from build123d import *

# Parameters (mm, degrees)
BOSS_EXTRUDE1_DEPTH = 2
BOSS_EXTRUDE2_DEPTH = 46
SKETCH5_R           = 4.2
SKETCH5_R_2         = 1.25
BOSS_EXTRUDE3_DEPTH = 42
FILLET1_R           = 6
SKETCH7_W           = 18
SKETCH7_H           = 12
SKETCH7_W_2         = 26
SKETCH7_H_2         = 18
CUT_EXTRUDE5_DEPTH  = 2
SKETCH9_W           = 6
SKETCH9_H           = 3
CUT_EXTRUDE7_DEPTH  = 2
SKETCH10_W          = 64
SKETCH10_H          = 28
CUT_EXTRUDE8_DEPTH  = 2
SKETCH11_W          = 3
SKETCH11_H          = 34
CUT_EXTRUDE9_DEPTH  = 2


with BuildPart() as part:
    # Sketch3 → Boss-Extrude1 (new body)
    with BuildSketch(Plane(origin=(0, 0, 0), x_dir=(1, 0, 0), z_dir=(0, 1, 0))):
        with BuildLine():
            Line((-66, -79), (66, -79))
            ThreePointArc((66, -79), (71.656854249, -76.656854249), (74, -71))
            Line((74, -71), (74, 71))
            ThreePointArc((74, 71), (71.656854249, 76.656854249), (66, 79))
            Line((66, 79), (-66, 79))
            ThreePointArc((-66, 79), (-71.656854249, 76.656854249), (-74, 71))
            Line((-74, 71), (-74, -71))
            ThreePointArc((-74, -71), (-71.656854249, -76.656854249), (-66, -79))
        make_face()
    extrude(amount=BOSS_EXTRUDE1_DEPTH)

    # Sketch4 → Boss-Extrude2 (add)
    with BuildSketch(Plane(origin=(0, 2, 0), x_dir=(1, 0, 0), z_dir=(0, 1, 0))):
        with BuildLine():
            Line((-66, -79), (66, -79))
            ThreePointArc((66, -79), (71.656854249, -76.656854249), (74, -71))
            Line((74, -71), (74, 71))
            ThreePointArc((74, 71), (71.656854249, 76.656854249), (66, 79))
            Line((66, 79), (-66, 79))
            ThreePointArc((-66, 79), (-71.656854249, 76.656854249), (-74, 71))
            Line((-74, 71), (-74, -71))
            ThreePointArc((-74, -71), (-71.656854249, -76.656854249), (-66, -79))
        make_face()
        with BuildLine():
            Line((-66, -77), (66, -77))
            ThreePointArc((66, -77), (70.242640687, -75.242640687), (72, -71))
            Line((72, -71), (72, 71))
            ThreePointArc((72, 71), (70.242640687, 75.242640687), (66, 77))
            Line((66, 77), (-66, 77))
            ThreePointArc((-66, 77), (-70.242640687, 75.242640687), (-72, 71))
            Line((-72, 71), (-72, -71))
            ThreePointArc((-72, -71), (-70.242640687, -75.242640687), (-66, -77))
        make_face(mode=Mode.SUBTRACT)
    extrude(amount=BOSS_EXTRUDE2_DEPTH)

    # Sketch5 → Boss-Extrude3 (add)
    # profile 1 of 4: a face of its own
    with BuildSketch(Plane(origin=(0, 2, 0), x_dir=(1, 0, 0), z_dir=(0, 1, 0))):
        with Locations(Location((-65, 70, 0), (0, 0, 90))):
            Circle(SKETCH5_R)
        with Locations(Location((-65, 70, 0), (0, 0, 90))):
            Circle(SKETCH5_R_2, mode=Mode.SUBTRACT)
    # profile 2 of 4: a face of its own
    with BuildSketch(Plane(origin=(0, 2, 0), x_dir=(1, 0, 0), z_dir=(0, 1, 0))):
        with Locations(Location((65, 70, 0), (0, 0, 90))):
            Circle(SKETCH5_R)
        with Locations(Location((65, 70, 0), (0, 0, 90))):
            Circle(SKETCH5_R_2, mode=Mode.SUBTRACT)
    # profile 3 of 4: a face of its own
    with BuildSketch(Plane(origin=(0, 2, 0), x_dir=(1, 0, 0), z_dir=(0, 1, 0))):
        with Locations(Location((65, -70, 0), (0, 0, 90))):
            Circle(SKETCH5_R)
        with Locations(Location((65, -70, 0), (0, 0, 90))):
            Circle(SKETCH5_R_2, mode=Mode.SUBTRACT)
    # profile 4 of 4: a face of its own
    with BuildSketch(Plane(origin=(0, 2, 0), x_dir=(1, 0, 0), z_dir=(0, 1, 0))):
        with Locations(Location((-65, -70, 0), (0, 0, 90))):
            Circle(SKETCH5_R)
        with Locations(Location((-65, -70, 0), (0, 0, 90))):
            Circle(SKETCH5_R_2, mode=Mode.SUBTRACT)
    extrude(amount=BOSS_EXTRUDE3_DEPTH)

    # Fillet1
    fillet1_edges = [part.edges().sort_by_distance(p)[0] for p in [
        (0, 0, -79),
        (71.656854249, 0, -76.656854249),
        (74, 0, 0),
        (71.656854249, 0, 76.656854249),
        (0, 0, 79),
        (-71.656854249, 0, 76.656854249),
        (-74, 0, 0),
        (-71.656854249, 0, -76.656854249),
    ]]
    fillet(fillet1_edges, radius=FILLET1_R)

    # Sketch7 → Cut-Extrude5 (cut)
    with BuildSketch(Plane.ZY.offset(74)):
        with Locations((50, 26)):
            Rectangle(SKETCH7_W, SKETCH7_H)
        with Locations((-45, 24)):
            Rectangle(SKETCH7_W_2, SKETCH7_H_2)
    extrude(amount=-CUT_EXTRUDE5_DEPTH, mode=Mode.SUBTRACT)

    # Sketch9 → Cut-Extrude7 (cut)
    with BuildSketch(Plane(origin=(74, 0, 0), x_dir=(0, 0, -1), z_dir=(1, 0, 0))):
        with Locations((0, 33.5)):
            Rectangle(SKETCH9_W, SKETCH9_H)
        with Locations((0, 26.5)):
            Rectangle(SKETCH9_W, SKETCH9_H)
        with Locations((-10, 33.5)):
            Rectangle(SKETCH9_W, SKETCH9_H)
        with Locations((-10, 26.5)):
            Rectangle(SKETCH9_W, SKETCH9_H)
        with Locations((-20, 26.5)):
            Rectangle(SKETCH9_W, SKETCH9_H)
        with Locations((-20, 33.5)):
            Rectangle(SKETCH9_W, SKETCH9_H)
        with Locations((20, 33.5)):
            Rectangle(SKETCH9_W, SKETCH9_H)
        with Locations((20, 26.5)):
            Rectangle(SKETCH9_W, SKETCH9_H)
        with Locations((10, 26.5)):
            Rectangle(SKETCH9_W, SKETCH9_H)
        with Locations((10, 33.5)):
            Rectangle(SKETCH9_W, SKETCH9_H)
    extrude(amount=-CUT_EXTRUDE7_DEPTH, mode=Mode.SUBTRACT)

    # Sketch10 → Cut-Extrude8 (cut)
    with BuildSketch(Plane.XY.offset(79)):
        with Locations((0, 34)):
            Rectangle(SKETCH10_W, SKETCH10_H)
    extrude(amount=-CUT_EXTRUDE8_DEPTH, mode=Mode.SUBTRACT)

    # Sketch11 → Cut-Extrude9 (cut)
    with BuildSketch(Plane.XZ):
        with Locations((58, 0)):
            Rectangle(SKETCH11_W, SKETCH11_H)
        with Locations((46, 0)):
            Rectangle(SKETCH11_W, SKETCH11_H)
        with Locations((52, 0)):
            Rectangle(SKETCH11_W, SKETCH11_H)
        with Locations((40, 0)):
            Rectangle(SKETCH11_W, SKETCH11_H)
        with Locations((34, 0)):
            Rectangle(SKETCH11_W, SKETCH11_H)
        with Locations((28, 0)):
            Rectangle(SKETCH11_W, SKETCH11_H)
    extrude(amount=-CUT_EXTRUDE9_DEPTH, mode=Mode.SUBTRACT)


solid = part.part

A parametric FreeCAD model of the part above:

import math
import FreeCAD as App
import Part
import Sketcher


def edges_at(feature, points):
    """Names of the edges that pass closest to the given points."""
    edges = feature.Shape.Edges
    near = lambda p: min(range(len(edges)), key=lambda i: edges[i].distToShape(Part.Vertex(*p))[0])
    return sorted({f"Edge{near(p) + 1}" for p in points})


def add_polygon(sketch, points):
    """Adds a closed chain of lines whose ends are joined by coincident constraints."""
    first, n = sketch.GeometryCount, len(points)
    for a, b in zip(points, points[1:] + points[:1]):
        sketch.addGeometry(Part.LineSegment(App.Vector(*a, 0), App.Vector(*b, 0)), False)
    for i in range(n):
        sketch.addConstraint(Sketcher.Constraint("Coincident", first + i, 2, first + (i + 1) % n, 1))

doc = App.newDocument("Part")
body = doc.addObject("PartDesign::Body", "Body")

# Sketch on XZ plane
sketch1 = doc.addObject("Sketcher::SketchObject", "Sketch")
body.addObject(sketch1)
sketch1.AttachmentSupport = (doc.XZ_Plane, [""])
sketch1.MapMode = "FlatFace"
sketch1.addGeometry(Part.LineSegment(App.Vector(-66, 79, 0), App.Vector(66, 79, 0)), False)
sketch1.addGeometry(Part.ArcOfCircle(Part.Circle(App.Vector(66, 71, 0), App.Vector(0, 0, 1), 8), math.radians(0), math.radians(90)), False)
sketch1.addGeometry(Part.LineSegment(App.Vector(74, 71, 0), App.Vector(74, -71, 0)), False)
sketch1.addGeometry(Part.ArcOfCircle(Part.Circle(App.Vector(66, -71, 0), App.Vector(0, 0, 1), 8), math.radians(-90), math.radians(0)), False)
sketch1.addGeometry(Part.LineSegment(App.Vector(66, -79, 0), App.Vector(-66, -79, 0)), False)
sketch1.addGeometry(Part.ArcOfCircle(Part.Circle(App.Vector(-66, -71, 0), App.Vector(0, 0, 1), 8), math.radians(-180), math.radians(-90)), False)
sketch1.addGeometry(Part.LineSegment(App.Vector(-74, -71, 0), App.Vector(-74, 71, 0)), False)
sketch1.addGeometry(Part.ArcOfCircle(Part.Circle(App.Vector(-66, 71, 0), App.Vector(0, 0, 1), 8), math.radians(90), math.radians(180)), False)
sketch1.addConstraint(Sketcher.Constraint("Tangent", 0, 2, 1, 2))
sketch1.addConstraint(Sketcher.Constraint("Tangent", 1, 1, 2, 1))
sketch1.addConstraint(Sketcher.Constraint("Tangent", 2, 2, 3, 2))
sketch1.addConstraint(Sketcher.Constraint("Tangent", 3, 1, 4, 1))
sketch1.addConstraint(Sketcher.Constraint("Tangent", 4, 2, 5, 2))
sketch1.addConstraint(Sketcher.Constraint("Tangent", 5, 1, 6, 1))
sketch1.addConstraint(Sketcher.Constraint("Tangent", 6, 2, 7, 2))
sketch1.addConstraint(Sketcher.Constraint("Tangent", 7, 1, 0, 1))
sketch1.addConstraint(Sketcher.Constraint("Horizontal", 0))
sketch1.addConstraint(Sketcher.Constraint("Vertical", 2))
sketch1.addConstraint(Sketcher.Constraint("Horizontal", 4))
sketch1.addConstraint(Sketcher.Constraint("Vertical", 6))
sketch1.addConstraint(Sketcher.Constraint("Equal", 1, 3))
sketch1.addConstraint(Sketcher.Constraint("Equal", 3, 5))
sketch1.addConstraint(Sketcher.Constraint("Equal", 5, 7))
sketch1.addConstraint(Sketcher.Constraint("Symmetric", 1, 3, 5, 3, -1, 1))
sketch1.addConstraint(Sketcher.Constraint("Radius", 1, 8.0))
sketch1.addConstraint(Sketcher.Constraint("DistanceX", 0, 1, 0, 2, 132.0))
sketch1.addConstraint(Sketcher.Constraint("DistanceY", 2, 2, 2, 1, 142.0))
pad1 = doc.addObject("PartDesign::Pad", "Pad")
body.addObject(pad1)
pad1.Profile = sketch1
pad1.Length = 2
pad1.Reversed = True

# Sketch on XZ plane
sketch2 = doc.addObject("Sketcher::SketchObject", "Sketch001")
body.addObject(sketch2)
sketch2.AttachmentSupport = (doc.XZ_Plane, [""])
sketch2.MapMode = "FlatFace"
sketch2.AttachmentOffset = App.Placement(App.Vector(0, 0, -2), App.Rotation())
sketch2.addGeometry(Part.LineSegment(App.Vector(-66, 79, 0), App.Vector(66, 79, 0)), False)
sketch2.addGeometry(Part.ArcOfCircle(Part.Circle(App.Vector(66, 71, 0), App.Vector(0, 0, 1), 8), math.radians(0), math.radians(90)), False)
sketch2.addGeometry(Part.LineSegment(App.Vector(74, 71, 0), App.Vector(74, -71, 0)), False)
sketch2.addGeometry(Part.ArcOfCircle(Part.Circle(App.Vector(66, -71, 0), App.Vector(0, 0, 1), 8), math.radians(-90), math.radians(0)), False)
sketch2.addGeometry(Part.LineSegment(App.Vector(66, -79, 0), App.Vector(-66, -79, 0)), False)
sketch2.addGeometry(Part.ArcOfCircle(Part.Circle(App.Vector(-66, -71, 0), App.Vector(0, 0, 1), 8), math.radians(-180), math.radians(-90)), False)
sketch2.addGeometry(Part.LineSegment(App.Vector(-74, -71, 0), App.Vector(-74, 71, 0)), False)
sketch2.addGeometry(Part.ArcOfCircle(Part.Circle(App.Vector(-66, 71, 0), App.Vector(0, 0, 1), 8), math.radians(90), math.radians(180)), False)
sketch2.addGeometry(Part.LineSegment(App.Vector(66, 77, 0), App.Vector(-66, 77, 0)), False)
sketch2.addGeometry(Part.ArcOfCircle(Part.Circle(App.Vector(-66, 71, 0), App.Vector(0, 0, 1), 6), math.radians(90), math.radians(180)), False)
sketch2.addGeometry(Part.LineSegment(App.Vector(-72, 71, 0), App.Vector(-72, -71, 0)), False)
sketch2.addGeometry(Part.ArcOfCircle(Part.Circle(App.Vector(-66, -71, 0), App.Vector(0, 0, 1), 6), math.radians(180), math.radians(270)), False)
sketch2.addGeometry(Part.LineSegment(App.Vector(-66, -77, 0), App.Vector(66, -77, 0)), False)
sketch2.addGeometry(Part.ArcOfCircle(Part.Circle(App.Vector(66, -71, 0), App.Vector(0, 0, 1), 6), math.radians(-90), math.radians(0)), False)
sketch2.addGeometry(Part.LineSegment(App.Vector(72, -71, 0), App.Vector(72, 71, 0)), False)
sketch2.addGeometry(Part.ArcOfCircle(Part.Circle(App.Vector(66, 71, 0), App.Vector(0, 0, 1), 6), math.radians(0), math.radians(90)), False)
sketch2.addConstraint(Sketcher.Constraint("Tangent", 0, 2, 1, 2))
sketch2.addConstraint(Sketcher.Constraint("Tangent", 1, 1, 2, 1))
sketch2.addConstraint(Sketcher.Constraint("Tangent", 2, 2, 3, 2))
sketch2.addConstraint(Sketcher.Constraint("Tangent", 3, 1, 4, 1))
sketch2.addConstraint(Sketcher.Constraint("Tangent", 4, 2, 5, 2))
sketch2.addConstraint(Sketcher.Constraint("Tangent", 5, 1, 6, 1))
sketch2.addConstraint(Sketcher.Constraint("Tangent", 6, 2, 7, 2))
sketch2.addConstraint(Sketcher.Constraint("Tangent", 7, 1, 0, 1))
sketch2.addConstraint(Sketcher.Constraint("Tangent", 8, 2, 9, 1))
sketch2.addConstraint(Sketcher.Constraint("Tangent", 9, 2, 10, 1))
sketch2.addConstraint(Sketcher.Constraint("Tangent", 10, 2, 11, 1))
sketch2.addConstraint(Sketcher.Constraint("Tangent", 11, 2, 12, 1))
sketch2.addConstraint(Sketcher.Constraint("Tangent", 12, 2, 13, 1))
sketch2.addConstraint(Sketcher.Constraint("Tangent", 13, 2, 14, 1))
sketch2.addConstraint(Sketcher.Constraint("Tangent", 14, 2, 15, 1))
sketch2.addConstraint(Sketcher.Constraint("Tangent", 15, 2, 8, 1))
sketch2.addConstraint(Sketcher.Constraint("Horizontal", 0))
sketch2.addConstraint(Sketcher.Constraint("Vertical", 2))
sketch2.addConstraint(Sketcher.Constraint("Horizontal", 4))
sketch2.addConstraint(Sketcher.Constraint("Vertical", 6))
sketch2.addConstraint(Sketcher.Constraint("Horizontal", 8))
sketch2.addConstraint(Sketcher.Constraint("Vertical", 10))
sketch2.addConstraint(Sketcher.Constraint("Horizontal", 12))
sketch2.addConstraint(Sketcher.Constraint("Vertical", 14))
sketch2.addConstraint(Sketcher.Constraint("Coincident", 9, 3, 7, 3))
sketch2.addConstraint(Sketcher.Constraint("Coincident", 11, 3, 5, 3))
sketch2.addConstraint(Sketcher.Constraint("Coincident", 13, 3, 3, 3))
sketch2.addConstraint(Sketcher.Constraint("Equal", 1, 3))
sketch2.addConstraint(Sketcher.Constraint("Equal", 3, 5))
sketch2.addConstraint(Sketcher.Constraint("Equal", 5, 7))
sketch2.addConstraint(Sketcher.Constraint("Equal", 13, 15))
sketch2.addConstraint(Sketcher.Constraint("Symmetric", 1, 3, 5, 3, -1, 1))
sketch2.addConstraint(Sketcher.Constraint("Radius", 1, 8.0))
sketch2.addConstraint(Sketcher.Constraint("Radius", 9, 6.0))
sketch2.addConstraint(Sketcher.Constraint("DistanceX", 0, 1, 0, 2, 132.0))
sketch2.addConstraint(Sketcher.Constraint("DistanceY", 2, 2, 2, 1, 142.0))
pad2 = doc.addObject("PartDesign::Pad", "Pad001")
body.addObject(pad2)
pad2.Profile = sketch2
pad2.Length = 46
pad2.Reversed = True

# Sketch on XZ plane
sketch3 = doc.addObject("Sketcher::SketchObject", "Sketch002")
body.addObject(sketch3)
sketch3.AttachmentSupport = (doc.XZ_Plane, [""])
sketch3.MapMode = "FlatFace"
sketch3.AttachmentOffset = App.Placement(App.Vector(0, 0, -2), App.Rotation())
sketch3.addGeometry(Part.Circle(App.Vector(-65, -70, 0), App.Vector(0, 0, 1), 4.2), False)
sketch3.addGeometry(Part.Circle(App.Vector(-65, -70, 0), App.Vector(0, 0, 1), 1.25), False)
sketch3.addGeometry(Part.Circle(App.Vector(65, -70, 0), App.Vector(0, 0, 1), 4.2), False)
sketch3.addGeometry(Part.Circle(App.Vector(65, -70, 0), App.Vector(0, 0, 1), 1.25), False)
sketch3.addGeometry(Part.Circle(App.Vector(65, 70, 0), App.Vector(0, 0, 1), 4.2), False)
sketch3.addGeometry(Part.Circle(App.Vector(65, 70, 0), App.Vector(0, 0, 1), 1.25), False)
sketch3.addGeometry(Part.Circle(App.Vector(-65, 70, 0), App.Vector(0, 0, 1), 4.2), False)
sketch3.addGeometry(Part.Circle(App.Vector(-65, 70, 0), App.Vector(0, 0, 1), 1.25), False)
sketch3.addConstraint(Sketcher.Constraint("Coincident", 1, 3, 0, 3))
sketch3.addConstraint(Sketcher.Constraint("Coincident", 3, 3, 2, 3))
sketch3.addConstraint(Sketcher.Constraint("Coincident", 5, 3, 4, 3))
sketch3.addConstraint(Sketcher.Constraint("Coincident", 7, 3, 6, 3))
sketch3.addConstraint(Sketcher.Constraint("Equal", 0, 2))
sketch3.addConstraint(Sketcher.Constraint("Equal", 1, 3))
sketch3.addConstraint(Sketcher.Constraint("Equal", 2, 4))
sketch3.addConstraint(Sketcher.Constraint("Equal", 3, 5))
sketch3.addConstraint(Sketcher.Constraint("Equal", 4, 6))
sketch3.addConstraint(Sketcher.Constraint("Equal", 5, 7))
sketch3.addConstraint(Sketcher.Constraint("Symmetric", 0, 3, 4, 3, -1, 1))
sketch3.addConstraint(Sketcher.Constraint("Symmetric", 2, 3, 6, 3, -1, 1))
sketch3.addConstraint(Sketcher.Constraint("Symmetric", 0, 3, 2, 3, -2))
sketch3.addConstraint(Sketcher.Constraint("Diameter", 0, 8.4))
sketch3.addConstraint(Sketcher.Constraint("Diameter", 1, 2.5))
sketch3.addConstraint(Sketcher.Constraint("DistanceX", 0, 3, -1, 1, 65.0))
sketch3.addConstraint(Sketcher.Constraint("DistanceY", 0, 3, -1, 1, 70.0))
pad3 = doc.addObject("PartDesign::Pad", "Pad002")
body.addObject(pad3)
pad3.Profile = sketch3
pad3.Length = 42
pad3.Reversed = True
doc.recompute()

fillet = doc.addObject("PartDesign::Fillet", "Fillet")
body.addObject(fillet)
fillet.Base = (pad3, edges_at(pad3, [
    (0, 0, -79),
    (71.657, 0, -76.657),
    (74, 0, 0),
    (71.657, 0, 76.657),
    (0, 0, 79),
    (-71.657, 0, 76.657),
    (-74, 0, 0),
    (-71.657, 0, -76.657),
]))
fillet.Radius = 6

# Sketch on YZ plane
sketch4 = doc.addObject("Sketcher::SketchObject", "Sketch003")
body.addObject(sketch4)
sketch4.AttachmentSupport = (doc.YZ_Plane, [""])
sketch4.MapMode = "FlatFace"
sketch4.AttachmentOffset = App.Placement(App.Vector(0, 0, -74), App.Rotation())
add_polygon(sketch4, [(32, 41), (20, 41), (20, 59), (32, 59)])  # lines 0-3
add_polygon(sketch4, [(33, -58), (15, -58), (15, -32), (33, -32)])  # lines 4-7
sketch4.addConstraint(Sketcher.Constraint("Horizontal", 0))
sketch4.addConstraint(Sketcher.Constraint("Vertical", 1))
sketch4.addConstraint(Sketcher.Constraint("Horizontal", 2))
sketch4.addConstraint(Sketcher.Constraint("Vertical", 3))
sketch4.addConstraint(Sketcher.Constraint("Horizontal", 4))
sketch4.addConstraint(Sketcher.Constraint("Vertical", 5))
sketch4.addConstraint(Sketcher.Constraint("Horizontal", 6))
sketch4.addConstraint(Sketcher.Constraint("Vertical", 7))
sketch4.addConstraint(Sketcher.Constraint("Equal", 6, 1))
sketch4.addConstraint(Sketcher.Constraint("DistanceX", 0, 2, 0, 1, 12.0))
sketch4.addConstraint(Sketcher.Constraint("DistanceX", 4, 2, 4, 1, 18.0))
sketch4.addConstraint(Sketcher.Constraint("DistanceY", 5, 1, 5, 2, 26.0))
sketch4.addConstraint(Sketcher.Constraint("DistanceX", -1, 1, 0, 2, 20.0))
sketch4.addConstraint(Sketcher.Constraint("DistanceY", -1, 1, 0, 2, 41.0))
sketch4.addConstraint(Sketcher.Constraint("DistanceX", -1, 1, 4, 2, 15.0))
sketch4.addConstraint(Sketcher.Constraint("DistanceY", 4, 2, -1, 1, 58.0))
pocket1 = doc.addObject("PartDesign::Pocket", "Pocket")
body.addObject(pocket1)
pocket1.Profile = sketch4
pocket1.Length = 2
pocket1.Reversed = True

# Sketch on YZ plane
sketch5 = doc.addObject("Sketcher::SketchObject", "Sketch004")
body.addObject(sketch5)
sketch5.AttachmentSupport = (doc.YZ_Plane, [""])
sketch5.MapMode = "FlatFace"
sketch5.AttachmentOffset = App.Placement(App.Vector(0, 0, 74), App.Rotation())
add_polygon(sketch5, [(35, 3), (32, 3), (32, -3), (35, -3)])  # lines 0-3
add_polygon(sketch5, [(28, 3), (25, 3), (25, -3), (28, -3)])  # lines 4-7
add_polygon(sketch5, [(35, 13), (32, 13), (32, 7), (35, 7)])  # lines 8-11
add_polygon(sketch5, [(28, 13), (25, 13), (25, 7), (28, 7)])  # lines 12-15
add_polygon(sketch5, [(28, 23), (25, 23), (25, 17), (28, 17)])  # lines 16-19
add_polygon(sketch5, [(35, 23), (32, 23), (32, 17), (35, 17)])  # lines 20-23
add_polygon(sketch5, [(35, -17), (32, -17), (32, -23), (35, -23)])  # lines 24-27
add_polygon(sketch5, [(28, -17), (25, -17), (25, -23), (28, -23)])  # lines 28-31
add_polygon(sketch5, [(28, -7), (25, -7), (25, -13), (28, -13)])  # lines 32-35
add_polygon(sketch5, [(35, -7), (32, -7), (32, -13), (35, -13)])  # lines 36-39
sketch5.addConstraint(Sketcher.Constraint("Horizontal", 0))
sketch5.addConstraint(Sketcher.Constraint("Vertical", 1))
sketch5.addConstraint(Sketcher.Constraint("Horizontal", 2))
sketch5.addConstraint(Sketcher.Constraint("Vertical", 3))
sketch5.addConstraint(Sketcher.Constraint("Horizontal", 4))
sketch5.addConstraint(Sketcher.Constraint("Vertical", 5))
sketch5.addConstraint(Sketcher.Constraint("Horizontal", 6))
sketch5.addConstraint(Sketcher.Constraint("Vertical", 7))
sketch5.addConstraint(Sketcher.Constraint("Horizontal", 8))
sketch5.addConstraint(Sketcher.Constraint("Vertical", 9))
sketch5.addConstraint(Sketcher.Constraint("Horizontal", 10))
sketch5.addConstraint(Sketcher.Constraint("Vertical", 11))
sketch5.addConstraint(Sketcher.Constraint("Horizontal", 12))
sketch5.addConstraint(Sketcher.Constraint("Vertical", 13))
sketch5.addConstraint(Sketcher.Constraint("Horizontal", 14))
sketch5.addConstraint(Sketcher.Constraint("Vertical", 15))
sketch5.addConstraint(Sketcher.Constraint("Horizontal", 16))
sketch5.addConstraint(Sketcher.Constraint("Vertical", 17))
sketch5.addConstraint(Sketcher.Constraint("Horizontal", 18))
sketch5.addConstraint(Sketcher.Constraint("Vertical", 19))
sketch5.addConstraint(Sketcher.Constraint("Horizontal", 20))
sketch5.addConstraint(Sketcher.Constraint("Vertical", 21))
sketch5.addConstraint(Sketcher.Constraint("Horizontal", 22))
sketch5.addConstraint(Sketcher.Constraint("Vertical", 23))
sketch5.addConstraint(Sketcher.Constraint("Horizontal", 24))
sketch5.addConstraint(Sketcher.Constraint("Vertical", 25))
sketch5.addConstraint(Sketcher.Constraint("Horizontal", 26))
sketch5.addConstraint(Sketcher.Constraint("Vertical", 27))
sketch5.addConstraint(Sketcher.Constraint("Horizontal", 28))
sketch5.addConstraint(Sketcher.Constraint("Vertical", 29))
sketch5.addConstraint(Sketcher.Constraint("Horizontal", 30))
sketch5.addConstraint(Sketcher.Constraint("Vertical", 31))
sketch5.addConstraint(Sketcher.Constraint("Horizontal", 32))
sketch5.addConstraint(Sketcher.Constraint("Vertical", 33))
sketch5.addConstraint(Sketcher.Constraint("Horizontal", 34))
sketch5.addConstraint(Sketcher.Constraint("Vertical", 35))
sketch5.addConstraint(Sketcher.Constraint("Horizontal", 36))
sketch5.addConstraint(Sketcher.Constraint("Vertical", 37))
sketch5.addConstraint(Sketcher.Constraint("Horizontal", 38))
sketch5.addConstraint(Sketcher.Constraint("Vertical", 39))
sketch5.addConstraint(Sketcher.Constraint("Symmetric", 21, 2, 24, 2, -1))
sketch5.addConstraint(Sketcher.Constraint("Symmetric", 23, 2, 26, 2, -1))
sketch5.addConstraint(Sketcher.Constraint("Symmetric", 17, 2, 28, 2, -1))
sketch5.addConstraint(Sketcher.Constraint("Symmetric", 19, 2, 30, 2, -1))
sketch5.addConstraint(Sketcher.Constraint("Symmetric", 13, 2, 32, 2, -1))
sketch5.addConstraint(Sketcher.Constraint("Symmetric", 15, 2, 34, 2, -1))
sketch5.addConstraint(Sketcher.Constraint("Symmetric", 9, 2, 36, 2, -1))
sketch5.addConstraint(Sketcher.Constraint("Symmetric", 11, 2, 38, 2, -1))
sketch5.addConstraint(Sketcher.Constraint("Horizontal", 3, 2, 4, 2))
sketch5.addConstraint(Sketcher.Constraint("Horizontal", 2, 2, 5, 2))
sketch5.addConstraint(Sketcher.Constraint("Horizontal", 11, 2, 12, 2))
sketch5.addConstraint(Sketcher.Constraint("Horizontal", 10, 2, 13, 2))
sketch5.addConstraint(Sketcher.Constraint("Horizontal", 19, 2, 20, 2))
sketch5.addConstraint(Sketcher.Constraint("Horizontal", 18, 2, 21, 2))
sketch5.addConstraint(Sketcher.Constraint("Vertical", 1, 2, 8, 2))
sketch5.addConstraint(Sketcher.Constraint("Vertical", 3, 2, 10, 2))
sketch5.addConstraint(Sketcher.Constraint("Vertical", 5, 2, 12, 2))
sketch5.addConstraint(Sketcher.Constraint("Vertical", 7, 2, 14, 2))
sketch5.addConstraint(Sketcher.Constraint("Vertical", 13, 2, 16, 2))
sketch5.addConstraint(Sketcher.Constraint("Vertical", 15, 2, 18, 2))
sketch5.addConstraint(Sketcher.Constraint("Vertical", 9, 2, 20, 2))
sketch5.addConstraint(Sketcher.Constraint("Vertical", 11, 2, 22, 2))
sketch5.addConstraint(Sketcher.Constraint("Equal", 2, 4))
sketch5.addConstraint(Sketcher.Constraint("Equal", 7, 9))
sketch5.addConstraint(Sketcher.Constraint("Equal", 15, 17))
sketch5.addConstraint(Sketcher.Constraint("DistanceX", 0, 2, 0, 1, 3.0))
sketch5.addConstraint(Sketcher.Constraint("DistanceY", 1, 2, 1, 1, 6.0))
sketch5.addConstraint(Sketcher.Constraint("DistanceX", -1, 1, 0, 2, 32.0))
sketch5.addConstraint(Sketcher.Constraint("DistanceY", -1, 1, 0, 2, 3.0))
sketch5.addConstraint(Sketcher.Constraint("DistanceX", -1, 1, 4, 2, 25.0))
sketch5.addConstraint(Sketcher.Constraint("DistanceY", -1, 1, 8, 2, 13.0))
sketch5.addConstraint(Sketcher.Constraint("DistanceY", -1, 1, 16, 2, 23.0))
pocket2 = doc.addObject("PartDesign::Pocket", "Pocket001")
body.addObject(pocket2)
pocket2.Profile = sketch5
pocket2.Length = 2

# Sketch on XY plane
sketch6 = doc.addObject("Sketcher::SketchObject", "Sketch005")
body.addObject(sketch6)
sketch6.AttachmentSupport = (doc.XY_Plane, [""])
sketch6.MapMode = "FlatFace"
sketch6.AttachmentOffset = App.Placement(App.Vector(0, 0, 79), App.Rotation())
add_polygon(sketch6, [(-32, 48), (-32, 20), (32, 20), (32, 48)])  # lines 0-3
sketch6.addConstraint(Sketcher.Constraint("Vertical", 0))
sketch6.addConstraint(Sketcher.Constraint("Horizontal", 1))
sketch6.addConstraint(Sketcher.Constraint("Vertical", 2))
sketch6.addConstraint(Sketcher.Constraint("Horizontal", 3))
sketch6.addConstraint(Sketcher.Constraint("DistanceX", 1, 1, 1, 2, 64.0))
sketch6.addConstraint(Sketcher.Constraint("DistanceY", 0, 2, 0, 1, 28.0))
sketch6.addConstraint(Sketcher.Constraint("DistanceX", 0, 2, -1, 1, 32.0))
sketch6.addConstraint(Sketcher.Constraint("DistanceY", -1, 1, 0, 2, 20.0))
pocket3 = doc.addObject("PartDesign::Pocket", "Pocket002")
body.addObject(pocket3)
pocket3.Profile = sketch6
pocket3.Length = 2

# Sketch on XZ plane
sketch7 = doc.addObject("Sketcher::SketchObject", "Sketch006")
body.addObject(sketch7)
sketch7.AttachmentSupport = (doc.XZ_Plane, [""])
sketch7.MapMode = "FlatFace"
add_polygon(sketch7, [(56.5, 17), (56.5, -17), (59.5, -17), (59.5, 17)])  # lines 0-3
add_polygon(sketch7, [(44.5, 17), (44.5, -17), (47.5, -17), (47.5, 17)])  # lines 4-7
add_polygon(sketch7, [(50.5, 17), (50.5, -17), (53.5, -17), (53.5, 17)])  # lines 8-11
add_polygon(sketch7, [(38.5, 17), (38.5, -17), (41.5, -17), (41.5, 17)])  # lines 12-15
add_polygon(sketch7, [(32.5, 17), (32.5, -17), (35.5, -17), (35.5, 17)])  # lines 16-19
add_polygon(sketch7, [(26.5, 17), (26.5, -17), (29.5, -17), (29.5, 17)])  # lines 20-23
sketch7.addConstraint(Sketcher.Constraint("Vertical", 0))
sketch7.addConstraint(Sketcher.Constraint("Horizontal", 1))
sketch7.addConstraint(Sketcher.Constraint("Vertical", 2))
sketch7.addConstraint(Sketcher.Constraint("Horizontal", 3))
sketch7.addConstraint(Sketcher.Constraint("Vertical", 4))
sketch7.addConstraint(Sketcher.Constraint("Horizontal", 5))
sketch7.addConstraint(Sketcher.Constraint("Vertical", 6))
sketch7.addConstraint(Sketcher.Constraint("Horizontal", 7))
sketch7.addConstraint(Sketcher.Constraint("Vertical", 8))
sketch7.addConstraint(Sketcher.Constraint("Horizontal", 9))
sketch7.addConstraint(Sketcher.Constraint("Vertical", 10))
sketch7.addConstraint(Sketcher.Constraint("Horizontal", 11))
sketch7.addConstraint(Sketcher.Constraint("Vertical", 12))
sketch7.addConstraint(Sketcher.Constraint("Horizontal", 13))
sketch7.addConstraint(Sketcher.Constraint("Vertical", 14))
sketch7.addConstraint(Sketcher.Constraint("Horizontal", 15))
sketch7.addConstraint(Sketcher.Constraint("Vertical", 16))
sketch7.addConstraint(Sketcher.Constraint("Horizontal", 17))
sketch7.addConstraint(Sketcher.Constraint("Vertical", 18))
sketch7.addConstraint(Sketcher.Constraint("Horizontal", 19))
sketch7.addConstraint(Sketcher.Constraint("Vertical", 20))
sketch7.addConstraint(Sketcher.Constraint("Horizontal", 21))
sketch7.addConstraint(Sketcher.Constraint("Vertical", 22))
sketch7.addConstraint(Sketcher.Constraint("Horizontal", 23))
sketch7.addConstraint(Sketcher.Constraint("Horizontal", 1, 2, 4, 2))
sketch7.addConstraint(Sketcher.Constraint("Horizontal", 3, 2, 6, 2))
sketch7.addConstraint(Sketcher.Constraint("Horizontal", 5, 2, 8, 2))
sketch7.addConstraint(Sketcher.Constraint("Horizontal", 7, 2, 10, 2))
sketch7.addConstraint(Sketcher.Constraint("Horizontal", 9, 2, 12, 2))
sketch7.addConstraint(Sketcher.Constraint("Horizontal", 11, 2, 14, 2))
sketch7.addConstraint(Sketcher.Constraint("Horizontal", 13, 2, 16, 2))
sketch7.addConstraint(Sketcher.Constraint("Horizontal", 15, 2, 18, 2))
sketch7.addConstraint(Sketcher.Constraint("Horizontal", 17, 2, 20, 2))
sketch7.addConstraint(Sketcher.Constraint("Horizontal", 19, 2, 22, 2))
sketch7.addConstraint(Sketcher.Constraint("Equal", 3, 5))
sketch7.addConstraint(Sketcher.Constraint("Equal", 7, 9))
sketch7.addConstraint(Sketcher.Constraint("Equal", 11, 13))
sketch7.addConstraint(Sketcher.Constraint("Equal", 15, 17))
sketch7.addConstraint(Sketcher.Constraint("Equal", 19, 21))
sketch7.addConstraint(Sketcher.Constraint("DistanceX", 1, 1, 1, 2, 3.0))
sketch7.addConstraint(Sketcher.Constraint("DistanceY", 0, 2, 0, 1, 34.0))
sketch7.addConstraint(Sketcher.Constraint("DistanceY", 0, 2, -1, 1, 17.0))
sketch7.addConstraint(Sketcher.Constraint("DistanceX", 4, 2, 0, 2, 12.0))
sketch7.addConstraint(Sketcher.Constraint("DistanceX", 5, 2, 8, 2, 3.0))
sketch7.addConstraint(Sketcher.Constraint("DistanceX", 12, 2, 4, 2, 6.0))
sketch7.addConstraint(Sketcher.Constraint("DistanceX", 16, 2, 12, 2, 6.0))
sketch7.addConstraint(Sketcher.Constraint("DistanceX", 20, 2, 16, 2, 6.0))
sketch7.addConstraint(Sketcher.Constraint("DistanceX", -1, 1, 0, 2, 56.5))
pocket4 = doc.addObject("PartDesign::Pocket", "Pocket003")
body.addObject(pocket4)
pocket4.Profile = sketch7
pocket4.Length = 2

doc.recompute()
